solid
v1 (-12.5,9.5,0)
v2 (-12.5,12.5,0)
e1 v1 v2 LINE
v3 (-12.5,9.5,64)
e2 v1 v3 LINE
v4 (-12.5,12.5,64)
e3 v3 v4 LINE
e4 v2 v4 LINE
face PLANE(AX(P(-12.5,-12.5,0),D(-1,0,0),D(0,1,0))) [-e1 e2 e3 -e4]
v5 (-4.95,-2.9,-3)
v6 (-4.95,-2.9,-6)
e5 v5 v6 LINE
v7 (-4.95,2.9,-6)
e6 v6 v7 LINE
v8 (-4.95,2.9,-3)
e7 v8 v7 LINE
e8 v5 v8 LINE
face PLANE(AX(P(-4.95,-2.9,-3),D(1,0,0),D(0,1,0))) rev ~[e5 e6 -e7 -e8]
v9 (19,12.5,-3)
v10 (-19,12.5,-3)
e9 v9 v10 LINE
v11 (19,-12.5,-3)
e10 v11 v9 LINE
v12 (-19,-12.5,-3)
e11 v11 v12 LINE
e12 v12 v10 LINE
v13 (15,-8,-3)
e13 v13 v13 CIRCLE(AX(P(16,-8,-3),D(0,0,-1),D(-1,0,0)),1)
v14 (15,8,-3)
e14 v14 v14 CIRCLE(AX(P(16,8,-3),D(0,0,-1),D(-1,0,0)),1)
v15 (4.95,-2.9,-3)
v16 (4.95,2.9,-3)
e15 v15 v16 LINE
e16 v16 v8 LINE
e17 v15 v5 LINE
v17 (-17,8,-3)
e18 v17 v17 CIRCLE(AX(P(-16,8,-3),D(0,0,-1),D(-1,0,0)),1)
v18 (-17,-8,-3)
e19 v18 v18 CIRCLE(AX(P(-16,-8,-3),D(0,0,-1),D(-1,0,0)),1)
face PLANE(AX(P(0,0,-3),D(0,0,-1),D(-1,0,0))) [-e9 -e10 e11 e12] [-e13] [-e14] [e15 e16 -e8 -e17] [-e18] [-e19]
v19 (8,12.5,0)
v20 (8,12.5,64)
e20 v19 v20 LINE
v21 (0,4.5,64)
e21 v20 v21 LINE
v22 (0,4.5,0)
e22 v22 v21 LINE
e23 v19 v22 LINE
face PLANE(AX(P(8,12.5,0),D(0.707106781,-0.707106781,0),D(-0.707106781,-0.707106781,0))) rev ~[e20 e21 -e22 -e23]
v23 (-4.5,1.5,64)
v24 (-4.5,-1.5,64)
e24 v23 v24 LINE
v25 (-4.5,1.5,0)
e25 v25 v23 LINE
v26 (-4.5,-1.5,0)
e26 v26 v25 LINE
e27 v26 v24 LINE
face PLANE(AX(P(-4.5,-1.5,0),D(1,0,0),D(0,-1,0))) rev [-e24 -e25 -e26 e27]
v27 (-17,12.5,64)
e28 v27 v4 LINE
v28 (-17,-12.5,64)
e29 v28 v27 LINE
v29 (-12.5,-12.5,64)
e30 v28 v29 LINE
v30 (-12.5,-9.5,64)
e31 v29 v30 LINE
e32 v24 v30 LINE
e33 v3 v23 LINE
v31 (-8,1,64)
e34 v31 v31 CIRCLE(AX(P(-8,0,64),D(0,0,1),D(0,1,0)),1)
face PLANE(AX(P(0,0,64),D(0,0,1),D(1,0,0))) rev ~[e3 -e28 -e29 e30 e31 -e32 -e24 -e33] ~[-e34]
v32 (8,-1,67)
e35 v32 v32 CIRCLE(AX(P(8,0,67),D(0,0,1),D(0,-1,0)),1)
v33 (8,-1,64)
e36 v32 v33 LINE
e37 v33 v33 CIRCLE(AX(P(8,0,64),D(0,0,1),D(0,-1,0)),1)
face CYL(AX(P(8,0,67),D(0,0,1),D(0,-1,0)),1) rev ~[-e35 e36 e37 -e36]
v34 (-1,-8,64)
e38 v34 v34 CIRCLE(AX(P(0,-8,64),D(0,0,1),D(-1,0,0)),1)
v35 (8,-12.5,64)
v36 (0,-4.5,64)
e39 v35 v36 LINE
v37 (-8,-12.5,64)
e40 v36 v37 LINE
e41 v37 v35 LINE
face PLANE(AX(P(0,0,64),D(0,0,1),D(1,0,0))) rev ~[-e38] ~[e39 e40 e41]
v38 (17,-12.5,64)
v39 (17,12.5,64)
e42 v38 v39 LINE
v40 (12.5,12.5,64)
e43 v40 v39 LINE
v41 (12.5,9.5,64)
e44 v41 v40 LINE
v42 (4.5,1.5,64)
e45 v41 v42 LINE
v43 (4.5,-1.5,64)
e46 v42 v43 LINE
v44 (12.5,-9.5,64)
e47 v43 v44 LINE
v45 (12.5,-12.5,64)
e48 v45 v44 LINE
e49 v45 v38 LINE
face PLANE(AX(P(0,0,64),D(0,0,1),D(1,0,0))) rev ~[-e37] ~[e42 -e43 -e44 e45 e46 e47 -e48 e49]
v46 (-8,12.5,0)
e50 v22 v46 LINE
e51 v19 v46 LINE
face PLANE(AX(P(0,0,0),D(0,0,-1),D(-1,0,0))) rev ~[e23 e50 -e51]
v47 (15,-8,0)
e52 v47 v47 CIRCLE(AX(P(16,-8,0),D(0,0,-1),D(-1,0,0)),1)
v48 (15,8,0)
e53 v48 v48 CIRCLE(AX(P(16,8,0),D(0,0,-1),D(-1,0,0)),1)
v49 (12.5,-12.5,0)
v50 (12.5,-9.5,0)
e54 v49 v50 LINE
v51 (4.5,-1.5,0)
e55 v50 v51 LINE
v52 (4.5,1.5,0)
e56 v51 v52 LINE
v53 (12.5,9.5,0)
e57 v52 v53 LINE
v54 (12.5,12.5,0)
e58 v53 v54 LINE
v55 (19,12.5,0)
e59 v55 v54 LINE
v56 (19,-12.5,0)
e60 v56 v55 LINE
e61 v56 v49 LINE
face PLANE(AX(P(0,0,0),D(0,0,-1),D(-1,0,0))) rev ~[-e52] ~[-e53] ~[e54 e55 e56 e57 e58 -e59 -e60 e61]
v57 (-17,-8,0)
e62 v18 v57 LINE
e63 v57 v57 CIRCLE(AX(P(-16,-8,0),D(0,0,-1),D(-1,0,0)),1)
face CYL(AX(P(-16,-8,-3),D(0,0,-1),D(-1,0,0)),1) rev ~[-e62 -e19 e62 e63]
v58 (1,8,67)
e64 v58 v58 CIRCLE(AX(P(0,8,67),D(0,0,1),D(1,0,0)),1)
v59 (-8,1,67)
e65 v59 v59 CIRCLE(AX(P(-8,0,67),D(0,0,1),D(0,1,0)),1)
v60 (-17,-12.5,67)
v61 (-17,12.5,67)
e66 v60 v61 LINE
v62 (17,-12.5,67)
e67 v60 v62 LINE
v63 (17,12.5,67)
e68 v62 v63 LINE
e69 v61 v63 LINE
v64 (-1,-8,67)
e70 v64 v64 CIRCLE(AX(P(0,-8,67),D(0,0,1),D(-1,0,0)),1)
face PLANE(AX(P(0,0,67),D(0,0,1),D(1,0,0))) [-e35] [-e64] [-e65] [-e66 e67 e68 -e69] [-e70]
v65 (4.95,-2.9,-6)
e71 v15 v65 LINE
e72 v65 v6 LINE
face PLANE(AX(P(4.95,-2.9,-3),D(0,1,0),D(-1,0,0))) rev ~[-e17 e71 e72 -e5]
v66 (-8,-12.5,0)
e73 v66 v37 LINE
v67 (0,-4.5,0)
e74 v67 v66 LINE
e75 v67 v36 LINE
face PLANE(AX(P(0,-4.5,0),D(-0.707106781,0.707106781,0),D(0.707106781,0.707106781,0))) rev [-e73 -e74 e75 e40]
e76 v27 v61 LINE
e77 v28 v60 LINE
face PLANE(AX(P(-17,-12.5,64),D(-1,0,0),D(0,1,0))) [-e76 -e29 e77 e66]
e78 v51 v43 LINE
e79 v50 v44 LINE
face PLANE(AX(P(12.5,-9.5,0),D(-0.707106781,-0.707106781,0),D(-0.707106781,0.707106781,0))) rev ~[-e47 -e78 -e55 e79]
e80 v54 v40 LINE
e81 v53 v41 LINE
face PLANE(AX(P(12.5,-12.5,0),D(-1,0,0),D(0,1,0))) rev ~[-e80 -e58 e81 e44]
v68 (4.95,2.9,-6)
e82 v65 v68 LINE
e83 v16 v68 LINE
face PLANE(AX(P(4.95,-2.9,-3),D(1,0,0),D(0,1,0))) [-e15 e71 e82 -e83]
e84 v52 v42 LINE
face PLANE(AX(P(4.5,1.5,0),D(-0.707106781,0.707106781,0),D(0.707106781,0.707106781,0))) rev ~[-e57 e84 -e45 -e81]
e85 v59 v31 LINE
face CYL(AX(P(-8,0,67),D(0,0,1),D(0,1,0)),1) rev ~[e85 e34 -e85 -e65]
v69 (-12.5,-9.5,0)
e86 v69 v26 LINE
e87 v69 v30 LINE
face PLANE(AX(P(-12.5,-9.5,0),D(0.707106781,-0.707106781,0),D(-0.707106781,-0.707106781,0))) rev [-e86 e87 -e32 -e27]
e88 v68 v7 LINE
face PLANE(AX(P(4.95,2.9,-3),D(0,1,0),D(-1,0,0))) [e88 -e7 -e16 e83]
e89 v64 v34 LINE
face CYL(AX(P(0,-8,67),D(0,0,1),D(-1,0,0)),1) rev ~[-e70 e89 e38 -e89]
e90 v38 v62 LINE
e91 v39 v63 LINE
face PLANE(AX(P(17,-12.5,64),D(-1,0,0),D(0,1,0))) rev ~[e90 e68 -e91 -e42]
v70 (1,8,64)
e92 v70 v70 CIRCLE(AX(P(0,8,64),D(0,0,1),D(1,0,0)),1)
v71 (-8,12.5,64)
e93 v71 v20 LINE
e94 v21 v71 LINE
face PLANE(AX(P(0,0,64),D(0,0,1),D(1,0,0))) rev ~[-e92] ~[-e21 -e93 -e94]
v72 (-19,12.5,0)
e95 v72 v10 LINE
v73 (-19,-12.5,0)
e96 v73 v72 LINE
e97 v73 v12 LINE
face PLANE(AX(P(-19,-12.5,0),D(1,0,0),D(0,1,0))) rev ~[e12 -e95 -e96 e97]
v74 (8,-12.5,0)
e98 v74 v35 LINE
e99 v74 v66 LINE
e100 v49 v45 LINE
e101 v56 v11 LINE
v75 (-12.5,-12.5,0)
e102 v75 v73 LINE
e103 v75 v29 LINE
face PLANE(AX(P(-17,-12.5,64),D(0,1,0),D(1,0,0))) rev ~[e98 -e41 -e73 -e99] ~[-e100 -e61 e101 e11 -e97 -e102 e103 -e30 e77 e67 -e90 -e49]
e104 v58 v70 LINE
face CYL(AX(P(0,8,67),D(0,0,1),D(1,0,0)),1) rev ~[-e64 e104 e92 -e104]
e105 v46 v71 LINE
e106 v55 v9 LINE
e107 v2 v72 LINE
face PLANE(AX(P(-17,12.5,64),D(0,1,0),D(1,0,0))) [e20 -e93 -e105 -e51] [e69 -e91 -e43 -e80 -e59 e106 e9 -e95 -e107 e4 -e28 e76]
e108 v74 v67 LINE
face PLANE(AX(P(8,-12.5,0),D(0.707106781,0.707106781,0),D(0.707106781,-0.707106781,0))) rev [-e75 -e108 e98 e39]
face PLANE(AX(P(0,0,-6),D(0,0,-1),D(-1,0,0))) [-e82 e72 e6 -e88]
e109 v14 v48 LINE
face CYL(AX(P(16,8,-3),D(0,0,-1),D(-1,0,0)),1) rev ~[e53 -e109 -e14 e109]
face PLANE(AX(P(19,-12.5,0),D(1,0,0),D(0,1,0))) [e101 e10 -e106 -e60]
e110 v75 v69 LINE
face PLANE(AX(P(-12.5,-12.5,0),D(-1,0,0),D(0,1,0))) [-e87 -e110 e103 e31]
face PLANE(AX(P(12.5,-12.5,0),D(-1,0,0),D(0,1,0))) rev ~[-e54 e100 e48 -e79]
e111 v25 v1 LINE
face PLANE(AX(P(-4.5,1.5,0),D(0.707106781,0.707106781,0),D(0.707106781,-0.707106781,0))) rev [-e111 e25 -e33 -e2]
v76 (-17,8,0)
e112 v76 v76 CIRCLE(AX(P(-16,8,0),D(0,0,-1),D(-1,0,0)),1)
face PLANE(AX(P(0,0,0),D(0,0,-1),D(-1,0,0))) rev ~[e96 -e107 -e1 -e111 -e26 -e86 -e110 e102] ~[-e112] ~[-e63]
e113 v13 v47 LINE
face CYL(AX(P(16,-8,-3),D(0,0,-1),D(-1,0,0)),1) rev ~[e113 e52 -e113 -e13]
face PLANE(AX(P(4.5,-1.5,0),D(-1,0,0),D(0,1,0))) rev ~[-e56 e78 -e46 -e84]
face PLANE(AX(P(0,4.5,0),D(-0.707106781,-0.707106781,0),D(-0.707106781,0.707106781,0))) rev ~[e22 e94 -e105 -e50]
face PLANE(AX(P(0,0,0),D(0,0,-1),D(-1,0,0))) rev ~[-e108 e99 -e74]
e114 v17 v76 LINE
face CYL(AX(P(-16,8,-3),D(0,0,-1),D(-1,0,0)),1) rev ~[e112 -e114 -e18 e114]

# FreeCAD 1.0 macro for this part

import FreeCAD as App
import Part
import Sketcher

doc = App.newDocument("Part")
params = doc.addObject("Spreadsheet::Sheet", "Params")
for row, (alias, value) in enumerate([
    ("sketch1_width", "25 mm"),
    ("pad1_length", "64 mm"),
    ("sketch2_height", "19 mm"),
    ("sketch2_height2", "3 mm"),
    ("pocket1_length", "100 mm"),
    ("sketch3_width", "16 mm"),
    ("pocket2_length", "64 mm"),
    ("sketch4_width", "38 mm"),
    ("sketch4_height", "25 mm"),
    ("pad2_length", "3 mm"),
    ("sketch5_diameter", "2 mm"),
    ("pocket3_length", "3 mm"),
    ("linearpattern_pitch", "32 mm"),
    ("linearpattern2_pitch", "16 mm"),
    ("sketch6_diameter", "2 mm"),
    ("pocket4_length", "3 mm"),
    ("sketch7_width", "9.9 mm"),
    ("sketch7_height", "5.8 mm"),
    ("pad3_length", "3 mm"),
    ("sketch8_width", "34 mm"),
    ("sketch8_height", "25 mm"),
    ("pad4_length", "3 mm"),
    ("sketch9_diameter", "2 mm"),
    ("pocket5_length", "3 mm"),
], start=1):
    params.set(f"A{row}", alias)
    params.set(f"B{row}", "=" + value)
    params.setAlias(f"B{row}", alias)

body = doc.addObject("PartDesign::Body", "Body")

sketch1 = body.newObject("Sketcher::SketchObject", "Sketch")
sketch1.AttachmentSupport = (doc.getObject("XY_Plane"), [""])
sketch1.MapMode = "FlatFace"
sketch1.addGeometry([
    Part.LineSegment(App.Vector(-12, 12, 0), App.Vector(-12, -12, 0)),
    Part.LineSegment(App.Vector(-12, -12, 0), App.Vector(12, -12, 0)),
    Part.LineSegment(App.Vector(12, -12, 0), App.Vector(12, 12, 0)),
    Part.LineSegment(App.Vector(12, 12, 0), App.Vector(-12, 12, 0)),
], False)
sketch1.addConstraint([
    Sketcher.Constraint("Coincident", 0, 2, 1, 1),
    Sketcher.Constraint("Coincident", 1, 2, 2, 1),
    Sketcher.Constraint("Coincident", 2, 2, 3, 1),
    Sketcher.Constraint("Coincident", 3, 2, 0, 1),
    Sketcher.Constraint("Vertical", 0),
    Sketcher.Constraint("Horizontal", 1),
    Sketcher.Constraint("Vertical", 2),
    Sketcher.Constraint("Horizontal", 3),
    Sketcher.Constraint("Symmetric", 0, 2, 2, 2, -1, 1),
    Sketcher.Constraint("Equal", 3, 0),
    Sketcher.Constraint("DistanceX", 1, 1, 1, 2, 25.0),
])
sketch1.setExpression("Constraints[10]", "Params.sketch1_width")
pad1 = body.newObject("PartDesign::Pad", "Pad")
pad1.Profile = sketch1
pad1.setExpression("Length", "Params.pad1_length")

sketch2 = body.newObject("Sketcher::SketchObject", "Sketch001")
sketch2.AttachmentSupport = (doc.getObject("XY_Plane"), [""])
sketch2.MapMode = "FlatFace"
sketch2.addGeometry([
    Part.LineSegment(App.Vector(4.5, 1.5, 0), App.Vector(12.5, 9.5, 0)),
    Part.LineSegment(App.Vector(12.5, 9.5, 0), App.Vector(12.5, -9.5, 0)),
    Part.LineSegment(App.Vector(12.5, -9.5, 0), App.Vector(4.5, -1.5, 0)),
    Part.LineSegment(App.Vector(4.5, -1.5, 0), App.Vector(4.5, 1.5, 0)),
], False)
sketch2.addConstraint([
    Sketcher.Constraint("Coincident", 0, 2, 1, 1),
    Sketcher.Constraint("Coincident", 1, 2, 2, 1),
    Sketcher.Constraint("Coincident", 2, 2, 3, 1),
    Sketcher.Constraint("Coincident", 3, 2, 0, 1),
    Sketcher.Constraint("Vertical", 1),
    Sketcher.Constraint("Vertical", 3),
    Sketcher.Constraint("Perpendicular", 0, 2),
    Sketcher.Constraint("Equal", 0, 2),
    Sketcher.Constraint("DistanceY", 1, 2, 1, 1, 19.0),
    Sketcher.Constraint("DistanceY", 3, 1, 3, 2, 3.0),
    Sketcher.Constraint("DistanceX", -1, 1, 0, 2, 12.5),
    Sketcher.Constraint("DistanceY", -1, 1, 0, 2, 9.5),
])
sketch2.setExpression("Constraints[8]", "Params.sketch2_height")
sketch2.setExpression("Constraints[9]", "Params.sketch2_height2")
pocket1 = body.newObject("PartDesign::Pocket", "Pocket")
pocket1.Profile = sketch2
pocket1.setExpression("Length", "Params.pocket1_length")
pocket1.Reversed = True
doc.recompute()

mirrored = body.newObject("PartDesign::Mirrored", "Mirrored")
mirrored.Originals = [pocket1]
mirrored.MirrorPlane = (doc.getObject("YZ_Plane"), [""])
body.Tip = mirrored

sketch3 = body.newObject("Sketcher::SketchObject", "Sketch002")
sketch3.AttachmentSupport = (doc.getObject("XY_Plane"), [""])
sketch3.MapMode = "FlatFace"
sketch3.addGeometry([
    Part.LineSegment(App.Vector(8, 12, 0), App.Vector(0, 4, 0)),
    Part.LineSegment(App.Vector(0, 4, 0), App.Vector(-8, 12, 0)),
    Part.LineSegment(App.Vector(-8, 12, 0), App.Vector(8, 12, 0)),
], False)
sketch3.addConstraint([
    Sketcher.Constraint("Coincident", 0, 2, 1, 1),
    Sketcher.Constraint("Coincident", 1, 2, 2, 1),
    Sketcher.Constraint("Coincident", 2, 2, 0, 1),
    Sketcher.Constraint("Horizontal", 2),
    Sketcher.Constraint("PointOnObject", 0, 2, -2),
    Sketcher.Constraint("Perpendicular", 0, 1),
    Sketcher.Constraint("Equal", 0, 1),
    Sketcher.Constraint("DistanceX", 2, 1, 2, 2, 16.0),
    Sketcher.Constraint("DistanceY", -1, 1, 0, 2, 4.5),
])
sketch3.setExpression("Constraints[7]", "Params.sketch3_width")
pocket2 = body.newObject("PartDesign::Pocket", "Pocket001")
pocket2.Profile = sketch3
pocket2.setExpression("Length", "Params.pocket2_length")
pocket2.Reversed = True
doc.recompute()

mirrored2 = body.newObject("PartDesign::Mirrored", "Mirrored001")
mirrored2.Originals = [pocket2]
mirrored2.MirrorPlane = (doc.getObject("XZ_Plane"), [""])
body.Tip = mirrored2

sketch4 = body.newObject("Sketcher::SketchObject", "Sketch003")
sketch4.AttachmentSupport = (doc.getObject("XY_Plane"), [""])
sketch4.MapMode = "FlatFace"
sketch4.addGeometry([
    Part.LineSegment(App.Vector(19, 12, 0), App.Vector(19, -12, 0)),
    Part.LineSegment(App.Vector(19, -12, 0), App.Vector(-19, -12, 0)),
    Part.LineSegment(App.Vector(-19, -12, 0), App.Vector(-19, 12, 0)),
    Part.LineSegment(App.Vector(-19, 12, 0), App.Vector(19, 12, 0)),
], False)
sketch4.addConstraint([
    Sketcher.Constraint("Coincident", 0, 2, 1, 1),
    Sketcher.Constraint("Coincident", 1, 2, 2, 1),
    Sketcher.Constraint("Coincident", 2, 2, 3, 1),
    Sketcher.Constraint("Coincident", 3, 2, 0, 1),
    Sketcher.Constraint("Vertical", 0),
    Sketcher.Constraint("Horizontal", 1),
    Sketcher.Constraint("Vertical", 2),
    Sketcher.Constraint("Horizontal", 3),
    Sketcher.Constraint("Symmetric", 0, 2, 2, 2, -1, 1),
    Sketcher.Constraint("DistanceX", 1, 2, 1, 1, 38.0),
    Sketcher.Constraint("DistanceY", 0, 2, 0, 1, 25.0),
])
sketch4.setExpression("Constraints[9]", "Params.sketch4_width")
sketch4.setExpression("Constraints[10]", "Params.sketch4_height")
pad2 = body.newObject("PartDesign::Pad", "Pad001")
pad2.Profile = sketch4
pad2.setExpression("Length", "Params.pad2_length")
pad2.Reversed = True

sketch5 = body.newObject("Sketcher::SketchObject", "Sketch004")
sketch5.AttachmentSupport = (doc.getObject("XY_Plane"), [""])
sketch5.MapMode = "FlatFace"
sketch5.AttachmentOffset = App.Placement(App.Vector(0, 0, -3), App.Rotation())
sketch5.addGeometry(Part.Circle(App.Vector(16, 8, 0), App.Vector(0, 0, 1), 1), False)
sketch5.addConstraint([
    Sketcher.Constraint("Diameter", 0, 2.0),
    Sketcher.Constraint("DistanceX", -1, 1, 0, 3, 16.0),
    Sketcher.Constraint("DistanceY", -1, 1, 0, 3, 8.0),
])
sketch5.setExpression("Constraints[0]", "Params.sketch5_diameter")
pocket3 = body.newObject("PartDesign::Pocket", "Pocket002")
pocket3.Profile = sketch5
pocket3.setExpression("Length", "Params.pocket3_length")
pocket3.Reversed = True
doc.recompute()

linearpattern = body.newObject("PartDesign::LinearPattern", "LinearPattern")
linearpattern.Originals = [pocket3]
linearpattern.Direction = (doc.getObject("X_Axis"), [""])
linearpattern.Mode = "offset"
linearpattern.setExpression("Offset", "Params.linearpattern_pitch")
linearpattern.Occurrences = 2
linearpattern.Reversed = True
body.Tip = linearpattern
doc.recompute()

linearpattern2 = body.newObject("PartDesign::LinearPattern", "LinearPattern001")
linearpattern2.Originals = [pocket3]
linearpattern2.Direction = (doc.getObject("Y_Axis"), [""])
linearpattern2.Mode = "offset"
linearpattern2.setExpression("Offset", "Params.linearpattern2_pitch")
linearpattern2.Occurrences = 2
linearpattern2.Reversed = True
body.Tip = linearpattern2

sketch6 = body.newObject("Sketcher::SketchObject", "Sketch005")
sketch6.AttachmentSupport = (doc.getObject("XY_Plane"), [""])
sketch6.MapMode = "FlatFace"
sketch6.AttachmentOffset = App.Placement(App.Vector(0, 0, -3), App.Rotation())
sketch6.addGeometry(Part.Circle(App.Vector(-16, -8, 0), App.Vector(0, 0, 1), 1), False)
sketch6.addConstraint([
    Sketcher.Constraint("Diameter", 0, 2.0),
    Sketcher.Constraint("DistanceX", 0, 3, -1, 1, 16.0),
    Sketcher.Constraint("DistanceY", 0, 3, -1, 1, 8.0),
])
sketch6.setExpression("Constraints[0]", "Params.sketch6_diameter")
pocket4 = body.newObject("PartDesign::Pocket", "Pocket003")
pocket4.Profile = sketch6
pocket4.setExpression("Length", "Params.pocket4_length")
pocket4.Reversed = True

sketch7 = body.newObject("Sketcher::SketchObject", "Sketch006")
sketch7.AttachmentSupport = (doc.getObject("XY_Plane"), [""])
sketch7.MapMode = "FlatFace"
sketch7.AttachmentOffset = App.Placement(App.Vector(0, 0, -3), App.Rotation())
sketch7.addGeometry([
    Part.LineSegment(App.Vector(5, 3, 0), App.Vector(5, -3, 0)),
    Part.LineSegment(App.Vector(5, -3, 0), App.Vector(-5, -3, 0)),
    Part.LineSegment(App.Vector(-5, -3, 0), App.Vector(-5, 3, 0)),
    Part.LineSegment(App.Vector(-5, 3, 0), App.Vector(5, 3, 0)),
], False)
sketch7.addConstraint([
    Sketcher.Constraint("Coincident", 0, 2, 1, 1),
    Sketcher.Constraint("Coincident", 1, 2, 2, 1),
    Sketcher.Constraint("Coincident", 2, 2, 3, 1),
    Sketcher.Constraint("Coincident", 3, 2, 0, 1),
    Sketcher.Constraint("Vertical", 0),
    Sketcher.Constraint("Horizontal", 1),
    Sketcher.Constraint("Vertical", 2),
    Sketcher.Constraint("Horizontal", 3),
    Sketcher.Constraint("Symmetric", 0, 2, 2, 2, -1, 1),
    Sketcher.Constraint("DistanceX", 1, 2, 1, 1, 9.9),
    Sketcher.Constraint("DistanceY", 0, 2, 0, 1, 5.8),
])
sketch7.setExpression("Constraints[9]", "Params.sketch7_width")
sketch7.setExpression("Constraints[10]", "Params.sketch7_height")
pad3 = body.newObject("PartDesign::Pad", "Pad002")
pad3.Profile = sketch7
pad3.setExpression("Length", "Params.pad3_length")
pad3.Reversed = True

sketch8 = body.newObject("Sketcher::SketchObject", "Sketch007")
sketch8.AttachmentSupport = (doc.getObject("XY_Plane"), [""])
sketch8.MapMode = "FlatFace"
sketch8.AttachmentOffset = App.Placement(App.Vector(0, 0, 64), App.Rotation())
sketch8.addGeometry([
    Part.LineSegment(App.Vector(-17, 12, 0), App.Vector(-17, -12, 0)),
    Part.LineSegment(App.Vector(-17, -12, 0), App.Vector(17, -12, 0)),
    Part.LineSegment(App.Vector(17, -12, 0), App.Vector(17, 12, 0)),
    Part.LineSegment(App.Vector(17, 12, 0), App.Vector(-17, 12, 0)),
], False)
sketch8.addConstraint([
    Sketcher.Constraint("Coincident", 0, 2, 1, 1),
    Sketcher.Constraint("Coincident", 1, 2, 2, 1),
    Sketcher.Constraint("Coincident", 2, 2, 3, 1),
    Sketcher.Constraint("Coincident", 3, 2, 0, 1),
    Sketcher.Constraint("Vertical", 0),
    Sketcher.Constraint("Horizontal", 1),
    Sketcher.Constraint("Vertical", 2),
    Sketcher.Constraint("Horizontal", 3),
    Sketcher.Constraint("Symmetric", 0, 2, 2, 2, -1, 1),
    Sketcher.Constraint("DistanceX", 1, 1, 1, 2, 34.0),
    Sketcher.Constraint("DistanceY", 0, 2, 0, 1, 25.0),
])
sketch8.setExpression("Constraints[9]", "Params.sketch8_width")
sketch8.setExpression("Constraints[10]", "Params.sketch8_height")
pad4 = body.newObject("PartDesign::Pad", "Pad003")
pad4.Profile = sketch8
pad4.setExpression("Length", "Params.pad4_length")

sketch9 = body.newObject("Sketcher::SketchObject", "Sketch008")
sketch9.AttachmentSupport = (doc.getObject("XY_Plane"), [""])
sketch9.MapMode = "FlatFace"
sketch9.AttachmentOffset = App.Placement(App.Vector(0, 0, 67), App.Rotation())
sketch9.addGeometry(Part.Circle(App.Vector(0, 8, 0), App.Vector(0, 0, 1), 1), False)
sketch9.addConstraint([
    Sketcher.Constraint("PointOnObject", 0, 3, -2),
    Sketcher.Constraint("Diameter", 0, 2.0),
    Sketcher.Constraint("DistanceY", -1, 1, 0, 3, 8.0),
])
sketch9.setExpression("Constraints[1]", "Params.sketch9_diameter")
pocket5 = body.newObject("PartDesign::Pocket", "Pocket004")
pocket5.Profile = sketch9
pocket5.setExpression("Length", "Params.pocket5_length")
doc.recompute()

polarpattern = body.newObject("PartDesign::PolarPattern", "PolarPattern")
polarpattern.Originals = [pocket5]
polarpattern.Axis = (doc.getObject("Z_Axis"), [""])
polarpattern.Angle = 360
polarpattern.Occurrences = 4
body.Tip = polarpattern

doc.recompute()
